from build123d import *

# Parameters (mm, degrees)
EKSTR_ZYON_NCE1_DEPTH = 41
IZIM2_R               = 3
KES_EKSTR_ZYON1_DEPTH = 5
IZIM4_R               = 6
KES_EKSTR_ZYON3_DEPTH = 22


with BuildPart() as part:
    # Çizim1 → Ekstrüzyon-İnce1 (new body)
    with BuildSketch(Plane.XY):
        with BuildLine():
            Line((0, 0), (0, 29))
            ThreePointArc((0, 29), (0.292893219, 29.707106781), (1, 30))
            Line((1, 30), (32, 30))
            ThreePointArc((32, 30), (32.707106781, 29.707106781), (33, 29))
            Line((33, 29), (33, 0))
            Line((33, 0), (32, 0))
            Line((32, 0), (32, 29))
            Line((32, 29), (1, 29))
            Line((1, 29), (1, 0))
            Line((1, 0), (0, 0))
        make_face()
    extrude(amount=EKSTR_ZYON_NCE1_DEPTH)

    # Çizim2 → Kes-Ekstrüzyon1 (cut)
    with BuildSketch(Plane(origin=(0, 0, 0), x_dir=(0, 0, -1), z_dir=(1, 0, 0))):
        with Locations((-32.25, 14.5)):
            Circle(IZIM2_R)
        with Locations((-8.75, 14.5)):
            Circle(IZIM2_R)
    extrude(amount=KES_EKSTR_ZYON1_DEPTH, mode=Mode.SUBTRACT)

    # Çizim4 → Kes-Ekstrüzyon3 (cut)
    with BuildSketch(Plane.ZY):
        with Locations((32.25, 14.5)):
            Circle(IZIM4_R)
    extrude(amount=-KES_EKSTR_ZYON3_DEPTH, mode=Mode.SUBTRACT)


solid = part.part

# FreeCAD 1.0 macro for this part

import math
import FreeCAD as App
import Part
import Sketcher
Q = App.Units.Quantity

doc = App.newDocument("Part")
body = doc.addObject("PartDesign::Body", "Body")

sketch1 = body.newObject("Sketcher::SketchObject", "Sketch")
sketch1.AttachmentSupport = (doc.getObject("XY_Plane"), [""])
sketch1.MapMode = "FlatFace"
sketch1.addGeometry([
    Part.LineSegment(App.Vector(0, 29, 0), App.Vector(0, 0, 0)),
    Part.LineSegment(App.Vector(0, 0, 0), App.Vector(1, 0, 0)),
    Part.LineSegment(App.Vector(1, 0, 0), App.Vector(1, 29, 0)),
    Part.LineSegment(App.Vector(1, 29, 0), App.Vector(32, 29, 0)),
    Part.LineSegment(App.Vector(32, 29, 0), App.Vector(32, 0, 0)),
    Part.LineSegment(App.Vector(32, 0, 0), App.Vector(33, 0, 0)),
    Part.LineSegment(App.Vector(33, 0, 0), App.Vector(33, 29, 0)),
    Part.ArcOfCircle(Part.Circle(App.Vector(32, 29, 0), App.Vector(0, 0, 1), 1), math.radians(0), math.radians(90)),
    Part.LineSegment(App.Vector(32, 30, 0), App.Vector(1, 30, 0)),
    Part.ArcOfCircle(Part.Circle(App.Vector(1, 29, 0), App.Vector(0, 0, 1), 1), math.radians(90), math.radians(180)),
], False)
sketch1.addConstraint([
    Sketcher.Constraint("Coincident", 0, 2, 1, 1),
    Sketcher.Constraint("Coincident", 1, 2, 2, 1),
    Sketcher.Constraint("Coincident", 2, 2, 3, 1),
    Sketcher.Constraint("Coincident", 3, 2, 4, 1),
    Sketcher.Constraint("Coincident", 4, 2, 5, 1),
    Sketcher.Constraint("Coincident", 5, 2, 6, 1),
    Sketcher.Constraint("Tangent", 6, 2, 7, 1),
    Sketcher.Constraint("Tangent", 7, 2, 8, 1),
    Sketcher.Constraint("Tangent", 8, 2, 9, 1),
    Sketcher.Constraint("Tangent", 9, 2, 0, 1),
    Sketcher.Constraint("Vertical", 0),
    Sketcher.Constraint("Horizontal", 1),
    Sketcher.Constraint("Vertical", 2),
    Sketcher.Constraint("Horizontal", 3),
    Sketcher.Constraint("Vertical", 4),
    Sketcher.Constraint("Horizontal", 5),
    Sketcher.Constraint("Vertical", 6),
    Sketcher.Constraint("Horizontal", 8),
    Sketcher.Constraint("Coincident", 0, 2, -1, 1),
    Sketcher.Constraint("Coincident", 2, 2, 9, 3),
    Sketcher.Constraint("Coincident", 3, 2, 7, 3),
    Sketcher.Constraint("PointOnObject", 4, 2, -1),
    Sketcher.Constraint("Radius", 7, Q("1 mm")),
    Sketcher.Constraint("DistanceX", 3, 1, 3, 2, Q("31 mm")),
    Sketcher.Constraint("DistanceY", 0, 2, 0, 1, Q("29 mm")),
])
pad1 = body.newObject("PartDesign::Pad", "Pad")
pad1.Profile = sketch1
pad1.Length = 41

sketch2 = body.newObject("Sketcher::SketchObject", "Sketch001")
sketch2.AttachmentSupport = (doc.getObject("YZ_Plane"), [""])
sketch2.MapMode = "FlatFace"
sketch2.addGeometry([
    Part.Circle(App.Vector(14.5, 32.2, 0), App.Vector(0, 0, 1), 3),
    Part.Circle(App.Vector(14.5, 8.8, 0), App.Vector(0, 0, 1), 3),
], False)
sketch2.addConstraint([
    Sketcher.Constraint("Equal", 0, 1),
    Sketcher.Constraint("Vertical", 0, 3, 1, 3),
    Sketcher.Constraint("Diameter", 0, Q("6 mm")),
    Sketcher.Constraint("DistanceX", -1, 1, 0, 3, Q("14.5 mm")),
    Sketcher.Constraint("DistanceY", 1, 3, 0, 3, Q("23.5 mm")),
    Sketcher.Constraint("DistanceY", -1, 1, 0, 3, Q("32.25 mm")),
])
pocket1 = body.newObject("PartDesign::Pocket", "Pocket")
pocket1.Profile = sketch2
pocket1.Length = 5
pocket1.Reversed = True

sketch3 = body.newObject("Sketcher::SketchObject", "Sketch002")
sketch3.AttachmentSupport = (doc.getObject("YZ_Plane"), [""])
sketch3.MapMode = "FlatFace"
sketch3.addGeometry(Part.Circle(App.Vector(14, 32, 0), App.Vector(0, 0, 1), 6), False)
sketch3.addConstraint([
    Sketcher.Constraint("Diameter", 0, Q("12 mm")),
    Sketcher.Constraint("DistanceX", -1, 1, 0, 3, Q("14.5 mm")),
    Sketcher.Constraint("DistanceY", -1, 1, 0, 3, Q("32.25 mm")),
])
pocket2 = body.newObject("PartDesign::Pocket", "Pocket001")
pocket2.Profile = sketch3
pocket2.Length = 22
pocket2.Reversed = True

doc.recompute()
